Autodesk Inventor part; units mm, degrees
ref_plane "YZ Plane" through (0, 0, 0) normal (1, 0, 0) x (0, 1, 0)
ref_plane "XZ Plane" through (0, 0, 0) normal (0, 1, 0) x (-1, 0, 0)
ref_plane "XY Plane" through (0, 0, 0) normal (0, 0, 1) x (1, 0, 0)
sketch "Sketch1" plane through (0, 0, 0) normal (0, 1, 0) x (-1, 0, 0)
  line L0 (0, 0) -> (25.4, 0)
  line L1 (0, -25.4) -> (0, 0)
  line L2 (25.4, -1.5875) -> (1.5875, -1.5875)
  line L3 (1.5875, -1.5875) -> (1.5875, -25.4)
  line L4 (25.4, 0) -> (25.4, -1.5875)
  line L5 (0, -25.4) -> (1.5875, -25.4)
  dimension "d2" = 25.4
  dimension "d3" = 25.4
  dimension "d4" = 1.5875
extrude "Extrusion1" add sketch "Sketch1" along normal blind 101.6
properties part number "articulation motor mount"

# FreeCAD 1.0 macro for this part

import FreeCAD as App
import Part
import Sketcher
Q = App.Units.Quantity


def add_polygon(sketch, points):
    """Adds a closed chain of lines whose ends are joined by coincident constraints."""
    first, n = sketch.GeometryCount, len(points)
    for a, b in zip(points, points[1:] + points[:1]):
        sketch.addGeometry(Part.LineSegment(App.Vector(*a, 0), App.Vector(*b, 0)), False)
    for i in range(n):
        sketch.addConstraint(Sketcher.Constraint("Coincident", first + i, 2, first + (i + 1) % n, 1))

doc = App.newDocument("Part")
body = doc.addObject("PartDesign::Body", "Body")

sketch1 = body.newObject("Sketcher::SketchObject", "Sketch")
sketch1.AttachmentSupport = (doc.getObject("XZ_Plane"), [""])
sketch1.MapMode = "FlatFace"
add_polygon(sketch1, [(-25.4, 0), (0, 0), (0, -25.4), (-1.5875, -25.4), (-1.5875, -1.5875), (-25.4, -1.5875)])
sketch1.addConstraint(Sketcher.Constraint("Horizontal", 0))
sketch1.addConstraint(Sketcher.Constraint("Vertical", 1))
sketch1.addConstraint(Sketcher.Constraint("Horizontal", 2))
sketch1.addConstraint(Sketcher.Constraint("Vertical", 3))
sketch1.addConstraint(Sketcher.Constraint("Horizontal", 4))
sketch1.addConstraint(Sketcher.Constraint("Vertical", 5))
sketch1.addConstraint(Sketcher.Constraint("Coincident", 0, 2, -1, 1))
sketch1.addConstraint(Sketcher.Constraint("Equal", 0, 1))
sketch1.addConstraint(Sketcher.Constraint("Equal", 4, 3))
sketch1.addConstraint(Sketcher.Constraint("DistanceX", 0, 1, 0, 2, Q("1 in")))
sketch1.addConstraint(Sketcher.Constraint("DistanceX", 2, 2, 2, 1, Q("0.0625 in")))
pad1 = body.newObject("PartDesign::Pad", "Pad")
pad1.Profile = sketch1
pad1.Length = Q("4 in")
pad1.Reversed = True

doc.recompute()
